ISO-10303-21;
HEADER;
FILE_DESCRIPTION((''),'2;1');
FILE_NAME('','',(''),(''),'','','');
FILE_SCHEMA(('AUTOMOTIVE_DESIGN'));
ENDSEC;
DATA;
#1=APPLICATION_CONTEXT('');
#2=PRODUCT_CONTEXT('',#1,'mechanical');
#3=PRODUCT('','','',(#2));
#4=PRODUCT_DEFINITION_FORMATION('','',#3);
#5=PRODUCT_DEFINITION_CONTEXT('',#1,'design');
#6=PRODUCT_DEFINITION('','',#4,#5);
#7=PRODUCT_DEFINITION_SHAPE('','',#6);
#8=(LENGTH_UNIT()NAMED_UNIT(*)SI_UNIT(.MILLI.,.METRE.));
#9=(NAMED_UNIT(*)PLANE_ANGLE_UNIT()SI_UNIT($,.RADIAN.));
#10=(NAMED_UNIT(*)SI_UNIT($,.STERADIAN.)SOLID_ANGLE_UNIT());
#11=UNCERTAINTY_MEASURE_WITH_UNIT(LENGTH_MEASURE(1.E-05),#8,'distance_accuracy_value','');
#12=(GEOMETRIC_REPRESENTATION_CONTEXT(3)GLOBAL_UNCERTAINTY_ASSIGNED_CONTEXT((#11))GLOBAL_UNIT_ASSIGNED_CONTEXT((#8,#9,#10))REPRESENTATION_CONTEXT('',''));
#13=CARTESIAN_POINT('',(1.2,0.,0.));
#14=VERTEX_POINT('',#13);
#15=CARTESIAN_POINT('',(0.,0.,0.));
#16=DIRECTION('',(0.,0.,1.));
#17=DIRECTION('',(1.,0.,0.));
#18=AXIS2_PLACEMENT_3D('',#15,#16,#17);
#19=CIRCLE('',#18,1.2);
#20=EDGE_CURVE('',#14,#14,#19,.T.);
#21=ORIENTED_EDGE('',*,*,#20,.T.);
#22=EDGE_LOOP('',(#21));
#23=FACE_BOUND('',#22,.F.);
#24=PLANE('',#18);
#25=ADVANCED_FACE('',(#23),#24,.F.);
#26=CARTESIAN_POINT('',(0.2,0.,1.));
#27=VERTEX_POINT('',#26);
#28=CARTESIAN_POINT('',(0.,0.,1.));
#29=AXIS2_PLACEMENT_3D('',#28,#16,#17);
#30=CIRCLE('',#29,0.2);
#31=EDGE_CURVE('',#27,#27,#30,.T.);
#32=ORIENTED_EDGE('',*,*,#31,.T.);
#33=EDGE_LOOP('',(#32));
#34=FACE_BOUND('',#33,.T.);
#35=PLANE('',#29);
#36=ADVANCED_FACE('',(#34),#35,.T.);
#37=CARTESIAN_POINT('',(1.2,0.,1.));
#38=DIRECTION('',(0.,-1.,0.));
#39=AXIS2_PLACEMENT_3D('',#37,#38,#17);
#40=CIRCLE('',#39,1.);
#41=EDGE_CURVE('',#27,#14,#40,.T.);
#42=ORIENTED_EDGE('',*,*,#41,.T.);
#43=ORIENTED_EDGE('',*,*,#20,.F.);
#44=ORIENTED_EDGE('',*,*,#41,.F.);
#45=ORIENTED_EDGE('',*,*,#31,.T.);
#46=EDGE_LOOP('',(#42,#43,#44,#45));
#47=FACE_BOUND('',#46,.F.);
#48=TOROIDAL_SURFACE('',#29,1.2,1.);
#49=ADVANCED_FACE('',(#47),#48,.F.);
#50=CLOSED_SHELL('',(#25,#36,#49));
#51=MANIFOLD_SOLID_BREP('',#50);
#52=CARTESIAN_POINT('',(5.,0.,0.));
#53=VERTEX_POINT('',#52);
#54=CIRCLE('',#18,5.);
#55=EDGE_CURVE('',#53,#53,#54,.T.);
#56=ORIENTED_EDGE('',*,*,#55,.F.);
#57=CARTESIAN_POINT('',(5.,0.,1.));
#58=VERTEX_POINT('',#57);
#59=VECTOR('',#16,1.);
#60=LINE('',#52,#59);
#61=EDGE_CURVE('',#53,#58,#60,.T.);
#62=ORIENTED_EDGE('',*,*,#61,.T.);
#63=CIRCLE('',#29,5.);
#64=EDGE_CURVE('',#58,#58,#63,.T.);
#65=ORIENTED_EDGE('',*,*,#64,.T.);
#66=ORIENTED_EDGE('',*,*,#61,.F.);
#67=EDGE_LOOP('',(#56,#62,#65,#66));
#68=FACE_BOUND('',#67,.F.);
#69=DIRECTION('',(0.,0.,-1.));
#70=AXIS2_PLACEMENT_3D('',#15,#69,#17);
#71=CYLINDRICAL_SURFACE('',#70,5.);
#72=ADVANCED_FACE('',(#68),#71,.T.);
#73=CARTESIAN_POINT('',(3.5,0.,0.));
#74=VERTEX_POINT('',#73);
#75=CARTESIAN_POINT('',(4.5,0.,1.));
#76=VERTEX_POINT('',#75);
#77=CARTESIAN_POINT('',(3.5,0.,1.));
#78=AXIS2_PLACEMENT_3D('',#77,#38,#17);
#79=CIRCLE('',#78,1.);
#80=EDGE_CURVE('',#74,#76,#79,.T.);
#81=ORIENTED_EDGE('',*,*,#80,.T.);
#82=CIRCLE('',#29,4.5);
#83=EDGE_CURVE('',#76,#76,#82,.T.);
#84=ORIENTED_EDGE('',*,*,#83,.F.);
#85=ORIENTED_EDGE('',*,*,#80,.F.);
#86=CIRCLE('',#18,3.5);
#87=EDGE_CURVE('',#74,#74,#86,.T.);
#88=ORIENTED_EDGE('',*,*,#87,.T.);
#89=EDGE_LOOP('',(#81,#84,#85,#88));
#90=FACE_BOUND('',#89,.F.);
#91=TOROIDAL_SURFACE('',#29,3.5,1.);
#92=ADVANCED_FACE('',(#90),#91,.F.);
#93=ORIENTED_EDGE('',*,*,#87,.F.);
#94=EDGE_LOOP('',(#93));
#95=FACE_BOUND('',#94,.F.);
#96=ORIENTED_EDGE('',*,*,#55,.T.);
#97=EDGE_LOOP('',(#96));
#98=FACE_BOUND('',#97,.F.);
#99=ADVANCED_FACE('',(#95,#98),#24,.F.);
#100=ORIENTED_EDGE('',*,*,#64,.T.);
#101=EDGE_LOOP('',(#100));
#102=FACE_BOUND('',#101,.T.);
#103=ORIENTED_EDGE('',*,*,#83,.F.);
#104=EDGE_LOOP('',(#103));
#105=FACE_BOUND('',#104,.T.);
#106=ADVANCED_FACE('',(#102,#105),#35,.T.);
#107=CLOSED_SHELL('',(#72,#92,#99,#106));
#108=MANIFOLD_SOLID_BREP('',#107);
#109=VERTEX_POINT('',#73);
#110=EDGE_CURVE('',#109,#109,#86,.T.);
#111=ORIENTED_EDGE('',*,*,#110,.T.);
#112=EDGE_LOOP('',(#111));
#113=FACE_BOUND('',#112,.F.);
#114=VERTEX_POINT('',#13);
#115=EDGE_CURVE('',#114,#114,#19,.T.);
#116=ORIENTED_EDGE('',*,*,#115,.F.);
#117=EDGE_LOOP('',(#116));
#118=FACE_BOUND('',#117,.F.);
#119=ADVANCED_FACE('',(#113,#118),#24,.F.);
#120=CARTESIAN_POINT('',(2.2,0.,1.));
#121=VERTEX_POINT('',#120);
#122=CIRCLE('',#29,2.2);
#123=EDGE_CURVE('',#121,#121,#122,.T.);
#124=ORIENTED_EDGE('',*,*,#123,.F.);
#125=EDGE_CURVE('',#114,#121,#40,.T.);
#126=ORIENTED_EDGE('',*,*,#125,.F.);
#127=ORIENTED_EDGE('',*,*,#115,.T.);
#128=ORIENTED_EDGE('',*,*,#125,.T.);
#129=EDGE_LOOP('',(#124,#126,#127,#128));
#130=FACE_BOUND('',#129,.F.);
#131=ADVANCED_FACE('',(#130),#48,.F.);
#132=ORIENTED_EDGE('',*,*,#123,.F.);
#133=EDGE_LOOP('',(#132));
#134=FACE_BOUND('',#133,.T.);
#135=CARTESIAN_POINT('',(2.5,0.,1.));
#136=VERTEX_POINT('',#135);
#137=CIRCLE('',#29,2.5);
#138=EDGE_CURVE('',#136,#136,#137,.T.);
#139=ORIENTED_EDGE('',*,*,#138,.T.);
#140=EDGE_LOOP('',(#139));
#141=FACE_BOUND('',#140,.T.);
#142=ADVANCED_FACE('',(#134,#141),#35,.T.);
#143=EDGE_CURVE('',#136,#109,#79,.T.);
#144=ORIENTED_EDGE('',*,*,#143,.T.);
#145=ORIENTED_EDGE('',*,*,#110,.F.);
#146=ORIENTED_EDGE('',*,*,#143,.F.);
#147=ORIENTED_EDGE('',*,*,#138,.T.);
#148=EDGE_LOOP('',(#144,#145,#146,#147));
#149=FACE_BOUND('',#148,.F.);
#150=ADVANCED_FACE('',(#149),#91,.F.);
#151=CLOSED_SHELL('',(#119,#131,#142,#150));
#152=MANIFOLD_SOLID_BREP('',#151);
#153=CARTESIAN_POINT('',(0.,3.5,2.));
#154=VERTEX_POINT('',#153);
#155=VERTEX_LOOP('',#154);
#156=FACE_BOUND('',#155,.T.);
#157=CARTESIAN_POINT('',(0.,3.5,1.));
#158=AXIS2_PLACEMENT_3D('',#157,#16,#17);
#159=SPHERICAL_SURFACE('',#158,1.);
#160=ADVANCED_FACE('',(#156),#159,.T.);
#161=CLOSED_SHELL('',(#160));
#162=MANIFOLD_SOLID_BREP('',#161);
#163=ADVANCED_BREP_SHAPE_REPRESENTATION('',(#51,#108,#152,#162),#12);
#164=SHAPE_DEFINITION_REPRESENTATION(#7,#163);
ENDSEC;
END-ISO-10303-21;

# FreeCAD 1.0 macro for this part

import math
import FreeCAD as App
import Part
import Sketcher

doc = App.newDocument("Part")
params = doc.addObject("Spreadsheet::Sheet", "Params")
for row, (alias, value) in enumerate([
    ("sketch1_diameter", "2 mm"),
    ("revolution_angle", "360 deg"),
    ("sketch2_diameter", "2 mm"),
    ("revolution2_angle", "360 deg"),
    ("sketch3_diameter", "10 mm"),
    ("pad1_length", "1 mm"),
    ("sketch4_radius", "1 mm"),
    ("revolution3_angle", "360 deg"),
], start=1):
    params.set(f"A{row}", alias)
    params.set(f"B{row}", "=" + value)
    params.setAlias(f"B{row}", alias)

body = doc.addObject("PartDesign::Body", "Body")

# Sketch on XZ plane
sketch1 = body.newObject("Sketcher::SketchObject", "Sketch")
sketch1.AttachmentSupport = (doc.getObject("XZ_Plane"), [""])
sketch1.MapMode = "FlatFace"
sketch1.addGeometry(Part.Circle(App.Vector(1.2, 1, 0), App.Vector(0, 0, 1), 1), False)
sketch1.addConstraint(Sketcher.Constraint("Diameter", 0, 2.0))
sketch1.addConstraint(Sketcher.Constraint("DistanceY", -1, 1, 0, 3, 1.0))
sketch1.addConstraint(Sketcher.Constraint("DistanceX", -1, 1, 0, 3, 1.2))
sketch1.setExpression("Constraints[0]", "Params.sketch1_diameter")
revolution = body.newObject("PartDesign::Revolution", "Revolution")
revolution.Profile = sketch1
revolution.ReferenceAxis = (sketch1, ["V_Axis"])
revolution.setExpression("Angle", "Params.revolution_angle")
body2 = doc.addObject("PartDesign::Body", "Body001")

# Sketch on XZ plane
sketch2 = body2.newObject("Sketcher::SketchObject", "Sketch001")
sketch2.AttachmentSupport = (doc.getObject("XZ_Plane001"), [""])
sketch2.MapMode = "FlatFace"
sketch2.addGeometry(Part.Circle(App.Vector(3.5, 1, 0), App.Vector(0, 0, 1), 1), False)
sketch2.addConstraint(Sketcher.Constraint("Diameter", 0, 2.0))
sketch2.addConstraint(Sketcher.Constraint("DistanceY", -1, 1, 0, 3, 1.0))
sketch2.addConstraint(Sketcher.Constraint("DistanceX", -1, 1, 0, 3, 3.5))
sketch2.setExpression("Constraints[0]", "Params.sketch2_diameter")
revolution2 = body2.newObject("PartDesign::Revolution", "Revolution001")
revolution2.Profile = sketch2
revolution2.ReferenceAxis = (sketch2, ["V_Axis"])
revolution2.setExpression("Angle", "Params.revolution2_angle")
body3 = doc.addObject("PartDesign::Body", "Body002")
body3.AllowCompound = True

# Sketch on XY plane
sketch3 = body3.newObject("Sketcher::SketchObject", "Sketch002")
sketch3.AttachmentSupport = (doc.getObject("XY_Plane002"), [""])
sketch3.MapMode = "FlatFace"
sketch3.addGeometry(Part.Circle(App.Vector(0, 0, 0), App.Vector(0, 0, 1), 5), False)
sketch3.addConstraint(Sketcher.Constraint("Coincident", 0, 3, -1, 1))
sketch3.addConstraint(Sketcher.Constraint("Diameter", 0, 10.0))
sketch3.setExpression("Constraints[1]", "Params.sketch3_diameter")
pad1 = body3.newObject("PartDesign::Pad", "Pad")
pad1.Profile = sketch3
pad1.setExpression("Length", "Params.pad1_length")
doc.recompute()

boolean = body3.newObject("PartDesign::Boolean", "Boolean")
boolean.Type = "Cut"
boolean.addObjects([body2])
doc.recompute()

boolean2 = body3.newObject("PartDesign::Boolean", "Boolean001")
boolean2.Type = "Cut"
boolean2.addObjects([body])
body4 = doc.addObject("PartDesign::Body", "Body003")

# Sketch on XZ plane
sketch4 = body4.newObject("Sketcher::SketchObject", "Sketch003")
sketch4.AttachmentSupport = (doc.getObject("XZ_Plane003"), [""])
sketch4.MapMode = "FlatFace"
sketch4.AttachmentOffset = App.Placement(App.Vector(0, 0, -3.5), App.Rotation())
sketch4.addGeometry(Part.ArcOfCircle(Part.Circle(App.Vector(0, 1, 0), App.Vector(0, 0, 1), 1), math.radians(-90), math.radians(90)), False)
sketch4.addGeometry(Part.LineSegment(App.Vector(0, 2, 0), App.Vector(0, 0, 0)), False)
sketch4.addConstraint(Sketcher.Constraint("Coincident", 0, 1, 1, 2))
sketch4.addConstraint(Sketcher.Constraint("Coincident", 1, 1, 0, 2))
sketch4.addConstraint(Sketcher.Constraint("Vertical", 1))
sketch4.addConstraint(Sketcher.Constraint("Coincident", 0, 1, -1, 1))
sketch4.addConstraint(Sketcher.Constraint("PointOnObject", 0, 3, -2))
sketch4.addConstraint(Sketcher.Constraint("Radius", 0, 1.0))
sketch4.setExpression("Constraints[5]", "Params.sketch4_radius")
revolution3 = body4.newObject("PartDesign::Revolution", "Revolution002")
revolution3.Profile = sketch4
revolution3.ReferenceAxis = (sketch4, ["V_Axis"])
revolution3.setExpression("Angle", "Params.revolution3_angle")

doc.recompute()
